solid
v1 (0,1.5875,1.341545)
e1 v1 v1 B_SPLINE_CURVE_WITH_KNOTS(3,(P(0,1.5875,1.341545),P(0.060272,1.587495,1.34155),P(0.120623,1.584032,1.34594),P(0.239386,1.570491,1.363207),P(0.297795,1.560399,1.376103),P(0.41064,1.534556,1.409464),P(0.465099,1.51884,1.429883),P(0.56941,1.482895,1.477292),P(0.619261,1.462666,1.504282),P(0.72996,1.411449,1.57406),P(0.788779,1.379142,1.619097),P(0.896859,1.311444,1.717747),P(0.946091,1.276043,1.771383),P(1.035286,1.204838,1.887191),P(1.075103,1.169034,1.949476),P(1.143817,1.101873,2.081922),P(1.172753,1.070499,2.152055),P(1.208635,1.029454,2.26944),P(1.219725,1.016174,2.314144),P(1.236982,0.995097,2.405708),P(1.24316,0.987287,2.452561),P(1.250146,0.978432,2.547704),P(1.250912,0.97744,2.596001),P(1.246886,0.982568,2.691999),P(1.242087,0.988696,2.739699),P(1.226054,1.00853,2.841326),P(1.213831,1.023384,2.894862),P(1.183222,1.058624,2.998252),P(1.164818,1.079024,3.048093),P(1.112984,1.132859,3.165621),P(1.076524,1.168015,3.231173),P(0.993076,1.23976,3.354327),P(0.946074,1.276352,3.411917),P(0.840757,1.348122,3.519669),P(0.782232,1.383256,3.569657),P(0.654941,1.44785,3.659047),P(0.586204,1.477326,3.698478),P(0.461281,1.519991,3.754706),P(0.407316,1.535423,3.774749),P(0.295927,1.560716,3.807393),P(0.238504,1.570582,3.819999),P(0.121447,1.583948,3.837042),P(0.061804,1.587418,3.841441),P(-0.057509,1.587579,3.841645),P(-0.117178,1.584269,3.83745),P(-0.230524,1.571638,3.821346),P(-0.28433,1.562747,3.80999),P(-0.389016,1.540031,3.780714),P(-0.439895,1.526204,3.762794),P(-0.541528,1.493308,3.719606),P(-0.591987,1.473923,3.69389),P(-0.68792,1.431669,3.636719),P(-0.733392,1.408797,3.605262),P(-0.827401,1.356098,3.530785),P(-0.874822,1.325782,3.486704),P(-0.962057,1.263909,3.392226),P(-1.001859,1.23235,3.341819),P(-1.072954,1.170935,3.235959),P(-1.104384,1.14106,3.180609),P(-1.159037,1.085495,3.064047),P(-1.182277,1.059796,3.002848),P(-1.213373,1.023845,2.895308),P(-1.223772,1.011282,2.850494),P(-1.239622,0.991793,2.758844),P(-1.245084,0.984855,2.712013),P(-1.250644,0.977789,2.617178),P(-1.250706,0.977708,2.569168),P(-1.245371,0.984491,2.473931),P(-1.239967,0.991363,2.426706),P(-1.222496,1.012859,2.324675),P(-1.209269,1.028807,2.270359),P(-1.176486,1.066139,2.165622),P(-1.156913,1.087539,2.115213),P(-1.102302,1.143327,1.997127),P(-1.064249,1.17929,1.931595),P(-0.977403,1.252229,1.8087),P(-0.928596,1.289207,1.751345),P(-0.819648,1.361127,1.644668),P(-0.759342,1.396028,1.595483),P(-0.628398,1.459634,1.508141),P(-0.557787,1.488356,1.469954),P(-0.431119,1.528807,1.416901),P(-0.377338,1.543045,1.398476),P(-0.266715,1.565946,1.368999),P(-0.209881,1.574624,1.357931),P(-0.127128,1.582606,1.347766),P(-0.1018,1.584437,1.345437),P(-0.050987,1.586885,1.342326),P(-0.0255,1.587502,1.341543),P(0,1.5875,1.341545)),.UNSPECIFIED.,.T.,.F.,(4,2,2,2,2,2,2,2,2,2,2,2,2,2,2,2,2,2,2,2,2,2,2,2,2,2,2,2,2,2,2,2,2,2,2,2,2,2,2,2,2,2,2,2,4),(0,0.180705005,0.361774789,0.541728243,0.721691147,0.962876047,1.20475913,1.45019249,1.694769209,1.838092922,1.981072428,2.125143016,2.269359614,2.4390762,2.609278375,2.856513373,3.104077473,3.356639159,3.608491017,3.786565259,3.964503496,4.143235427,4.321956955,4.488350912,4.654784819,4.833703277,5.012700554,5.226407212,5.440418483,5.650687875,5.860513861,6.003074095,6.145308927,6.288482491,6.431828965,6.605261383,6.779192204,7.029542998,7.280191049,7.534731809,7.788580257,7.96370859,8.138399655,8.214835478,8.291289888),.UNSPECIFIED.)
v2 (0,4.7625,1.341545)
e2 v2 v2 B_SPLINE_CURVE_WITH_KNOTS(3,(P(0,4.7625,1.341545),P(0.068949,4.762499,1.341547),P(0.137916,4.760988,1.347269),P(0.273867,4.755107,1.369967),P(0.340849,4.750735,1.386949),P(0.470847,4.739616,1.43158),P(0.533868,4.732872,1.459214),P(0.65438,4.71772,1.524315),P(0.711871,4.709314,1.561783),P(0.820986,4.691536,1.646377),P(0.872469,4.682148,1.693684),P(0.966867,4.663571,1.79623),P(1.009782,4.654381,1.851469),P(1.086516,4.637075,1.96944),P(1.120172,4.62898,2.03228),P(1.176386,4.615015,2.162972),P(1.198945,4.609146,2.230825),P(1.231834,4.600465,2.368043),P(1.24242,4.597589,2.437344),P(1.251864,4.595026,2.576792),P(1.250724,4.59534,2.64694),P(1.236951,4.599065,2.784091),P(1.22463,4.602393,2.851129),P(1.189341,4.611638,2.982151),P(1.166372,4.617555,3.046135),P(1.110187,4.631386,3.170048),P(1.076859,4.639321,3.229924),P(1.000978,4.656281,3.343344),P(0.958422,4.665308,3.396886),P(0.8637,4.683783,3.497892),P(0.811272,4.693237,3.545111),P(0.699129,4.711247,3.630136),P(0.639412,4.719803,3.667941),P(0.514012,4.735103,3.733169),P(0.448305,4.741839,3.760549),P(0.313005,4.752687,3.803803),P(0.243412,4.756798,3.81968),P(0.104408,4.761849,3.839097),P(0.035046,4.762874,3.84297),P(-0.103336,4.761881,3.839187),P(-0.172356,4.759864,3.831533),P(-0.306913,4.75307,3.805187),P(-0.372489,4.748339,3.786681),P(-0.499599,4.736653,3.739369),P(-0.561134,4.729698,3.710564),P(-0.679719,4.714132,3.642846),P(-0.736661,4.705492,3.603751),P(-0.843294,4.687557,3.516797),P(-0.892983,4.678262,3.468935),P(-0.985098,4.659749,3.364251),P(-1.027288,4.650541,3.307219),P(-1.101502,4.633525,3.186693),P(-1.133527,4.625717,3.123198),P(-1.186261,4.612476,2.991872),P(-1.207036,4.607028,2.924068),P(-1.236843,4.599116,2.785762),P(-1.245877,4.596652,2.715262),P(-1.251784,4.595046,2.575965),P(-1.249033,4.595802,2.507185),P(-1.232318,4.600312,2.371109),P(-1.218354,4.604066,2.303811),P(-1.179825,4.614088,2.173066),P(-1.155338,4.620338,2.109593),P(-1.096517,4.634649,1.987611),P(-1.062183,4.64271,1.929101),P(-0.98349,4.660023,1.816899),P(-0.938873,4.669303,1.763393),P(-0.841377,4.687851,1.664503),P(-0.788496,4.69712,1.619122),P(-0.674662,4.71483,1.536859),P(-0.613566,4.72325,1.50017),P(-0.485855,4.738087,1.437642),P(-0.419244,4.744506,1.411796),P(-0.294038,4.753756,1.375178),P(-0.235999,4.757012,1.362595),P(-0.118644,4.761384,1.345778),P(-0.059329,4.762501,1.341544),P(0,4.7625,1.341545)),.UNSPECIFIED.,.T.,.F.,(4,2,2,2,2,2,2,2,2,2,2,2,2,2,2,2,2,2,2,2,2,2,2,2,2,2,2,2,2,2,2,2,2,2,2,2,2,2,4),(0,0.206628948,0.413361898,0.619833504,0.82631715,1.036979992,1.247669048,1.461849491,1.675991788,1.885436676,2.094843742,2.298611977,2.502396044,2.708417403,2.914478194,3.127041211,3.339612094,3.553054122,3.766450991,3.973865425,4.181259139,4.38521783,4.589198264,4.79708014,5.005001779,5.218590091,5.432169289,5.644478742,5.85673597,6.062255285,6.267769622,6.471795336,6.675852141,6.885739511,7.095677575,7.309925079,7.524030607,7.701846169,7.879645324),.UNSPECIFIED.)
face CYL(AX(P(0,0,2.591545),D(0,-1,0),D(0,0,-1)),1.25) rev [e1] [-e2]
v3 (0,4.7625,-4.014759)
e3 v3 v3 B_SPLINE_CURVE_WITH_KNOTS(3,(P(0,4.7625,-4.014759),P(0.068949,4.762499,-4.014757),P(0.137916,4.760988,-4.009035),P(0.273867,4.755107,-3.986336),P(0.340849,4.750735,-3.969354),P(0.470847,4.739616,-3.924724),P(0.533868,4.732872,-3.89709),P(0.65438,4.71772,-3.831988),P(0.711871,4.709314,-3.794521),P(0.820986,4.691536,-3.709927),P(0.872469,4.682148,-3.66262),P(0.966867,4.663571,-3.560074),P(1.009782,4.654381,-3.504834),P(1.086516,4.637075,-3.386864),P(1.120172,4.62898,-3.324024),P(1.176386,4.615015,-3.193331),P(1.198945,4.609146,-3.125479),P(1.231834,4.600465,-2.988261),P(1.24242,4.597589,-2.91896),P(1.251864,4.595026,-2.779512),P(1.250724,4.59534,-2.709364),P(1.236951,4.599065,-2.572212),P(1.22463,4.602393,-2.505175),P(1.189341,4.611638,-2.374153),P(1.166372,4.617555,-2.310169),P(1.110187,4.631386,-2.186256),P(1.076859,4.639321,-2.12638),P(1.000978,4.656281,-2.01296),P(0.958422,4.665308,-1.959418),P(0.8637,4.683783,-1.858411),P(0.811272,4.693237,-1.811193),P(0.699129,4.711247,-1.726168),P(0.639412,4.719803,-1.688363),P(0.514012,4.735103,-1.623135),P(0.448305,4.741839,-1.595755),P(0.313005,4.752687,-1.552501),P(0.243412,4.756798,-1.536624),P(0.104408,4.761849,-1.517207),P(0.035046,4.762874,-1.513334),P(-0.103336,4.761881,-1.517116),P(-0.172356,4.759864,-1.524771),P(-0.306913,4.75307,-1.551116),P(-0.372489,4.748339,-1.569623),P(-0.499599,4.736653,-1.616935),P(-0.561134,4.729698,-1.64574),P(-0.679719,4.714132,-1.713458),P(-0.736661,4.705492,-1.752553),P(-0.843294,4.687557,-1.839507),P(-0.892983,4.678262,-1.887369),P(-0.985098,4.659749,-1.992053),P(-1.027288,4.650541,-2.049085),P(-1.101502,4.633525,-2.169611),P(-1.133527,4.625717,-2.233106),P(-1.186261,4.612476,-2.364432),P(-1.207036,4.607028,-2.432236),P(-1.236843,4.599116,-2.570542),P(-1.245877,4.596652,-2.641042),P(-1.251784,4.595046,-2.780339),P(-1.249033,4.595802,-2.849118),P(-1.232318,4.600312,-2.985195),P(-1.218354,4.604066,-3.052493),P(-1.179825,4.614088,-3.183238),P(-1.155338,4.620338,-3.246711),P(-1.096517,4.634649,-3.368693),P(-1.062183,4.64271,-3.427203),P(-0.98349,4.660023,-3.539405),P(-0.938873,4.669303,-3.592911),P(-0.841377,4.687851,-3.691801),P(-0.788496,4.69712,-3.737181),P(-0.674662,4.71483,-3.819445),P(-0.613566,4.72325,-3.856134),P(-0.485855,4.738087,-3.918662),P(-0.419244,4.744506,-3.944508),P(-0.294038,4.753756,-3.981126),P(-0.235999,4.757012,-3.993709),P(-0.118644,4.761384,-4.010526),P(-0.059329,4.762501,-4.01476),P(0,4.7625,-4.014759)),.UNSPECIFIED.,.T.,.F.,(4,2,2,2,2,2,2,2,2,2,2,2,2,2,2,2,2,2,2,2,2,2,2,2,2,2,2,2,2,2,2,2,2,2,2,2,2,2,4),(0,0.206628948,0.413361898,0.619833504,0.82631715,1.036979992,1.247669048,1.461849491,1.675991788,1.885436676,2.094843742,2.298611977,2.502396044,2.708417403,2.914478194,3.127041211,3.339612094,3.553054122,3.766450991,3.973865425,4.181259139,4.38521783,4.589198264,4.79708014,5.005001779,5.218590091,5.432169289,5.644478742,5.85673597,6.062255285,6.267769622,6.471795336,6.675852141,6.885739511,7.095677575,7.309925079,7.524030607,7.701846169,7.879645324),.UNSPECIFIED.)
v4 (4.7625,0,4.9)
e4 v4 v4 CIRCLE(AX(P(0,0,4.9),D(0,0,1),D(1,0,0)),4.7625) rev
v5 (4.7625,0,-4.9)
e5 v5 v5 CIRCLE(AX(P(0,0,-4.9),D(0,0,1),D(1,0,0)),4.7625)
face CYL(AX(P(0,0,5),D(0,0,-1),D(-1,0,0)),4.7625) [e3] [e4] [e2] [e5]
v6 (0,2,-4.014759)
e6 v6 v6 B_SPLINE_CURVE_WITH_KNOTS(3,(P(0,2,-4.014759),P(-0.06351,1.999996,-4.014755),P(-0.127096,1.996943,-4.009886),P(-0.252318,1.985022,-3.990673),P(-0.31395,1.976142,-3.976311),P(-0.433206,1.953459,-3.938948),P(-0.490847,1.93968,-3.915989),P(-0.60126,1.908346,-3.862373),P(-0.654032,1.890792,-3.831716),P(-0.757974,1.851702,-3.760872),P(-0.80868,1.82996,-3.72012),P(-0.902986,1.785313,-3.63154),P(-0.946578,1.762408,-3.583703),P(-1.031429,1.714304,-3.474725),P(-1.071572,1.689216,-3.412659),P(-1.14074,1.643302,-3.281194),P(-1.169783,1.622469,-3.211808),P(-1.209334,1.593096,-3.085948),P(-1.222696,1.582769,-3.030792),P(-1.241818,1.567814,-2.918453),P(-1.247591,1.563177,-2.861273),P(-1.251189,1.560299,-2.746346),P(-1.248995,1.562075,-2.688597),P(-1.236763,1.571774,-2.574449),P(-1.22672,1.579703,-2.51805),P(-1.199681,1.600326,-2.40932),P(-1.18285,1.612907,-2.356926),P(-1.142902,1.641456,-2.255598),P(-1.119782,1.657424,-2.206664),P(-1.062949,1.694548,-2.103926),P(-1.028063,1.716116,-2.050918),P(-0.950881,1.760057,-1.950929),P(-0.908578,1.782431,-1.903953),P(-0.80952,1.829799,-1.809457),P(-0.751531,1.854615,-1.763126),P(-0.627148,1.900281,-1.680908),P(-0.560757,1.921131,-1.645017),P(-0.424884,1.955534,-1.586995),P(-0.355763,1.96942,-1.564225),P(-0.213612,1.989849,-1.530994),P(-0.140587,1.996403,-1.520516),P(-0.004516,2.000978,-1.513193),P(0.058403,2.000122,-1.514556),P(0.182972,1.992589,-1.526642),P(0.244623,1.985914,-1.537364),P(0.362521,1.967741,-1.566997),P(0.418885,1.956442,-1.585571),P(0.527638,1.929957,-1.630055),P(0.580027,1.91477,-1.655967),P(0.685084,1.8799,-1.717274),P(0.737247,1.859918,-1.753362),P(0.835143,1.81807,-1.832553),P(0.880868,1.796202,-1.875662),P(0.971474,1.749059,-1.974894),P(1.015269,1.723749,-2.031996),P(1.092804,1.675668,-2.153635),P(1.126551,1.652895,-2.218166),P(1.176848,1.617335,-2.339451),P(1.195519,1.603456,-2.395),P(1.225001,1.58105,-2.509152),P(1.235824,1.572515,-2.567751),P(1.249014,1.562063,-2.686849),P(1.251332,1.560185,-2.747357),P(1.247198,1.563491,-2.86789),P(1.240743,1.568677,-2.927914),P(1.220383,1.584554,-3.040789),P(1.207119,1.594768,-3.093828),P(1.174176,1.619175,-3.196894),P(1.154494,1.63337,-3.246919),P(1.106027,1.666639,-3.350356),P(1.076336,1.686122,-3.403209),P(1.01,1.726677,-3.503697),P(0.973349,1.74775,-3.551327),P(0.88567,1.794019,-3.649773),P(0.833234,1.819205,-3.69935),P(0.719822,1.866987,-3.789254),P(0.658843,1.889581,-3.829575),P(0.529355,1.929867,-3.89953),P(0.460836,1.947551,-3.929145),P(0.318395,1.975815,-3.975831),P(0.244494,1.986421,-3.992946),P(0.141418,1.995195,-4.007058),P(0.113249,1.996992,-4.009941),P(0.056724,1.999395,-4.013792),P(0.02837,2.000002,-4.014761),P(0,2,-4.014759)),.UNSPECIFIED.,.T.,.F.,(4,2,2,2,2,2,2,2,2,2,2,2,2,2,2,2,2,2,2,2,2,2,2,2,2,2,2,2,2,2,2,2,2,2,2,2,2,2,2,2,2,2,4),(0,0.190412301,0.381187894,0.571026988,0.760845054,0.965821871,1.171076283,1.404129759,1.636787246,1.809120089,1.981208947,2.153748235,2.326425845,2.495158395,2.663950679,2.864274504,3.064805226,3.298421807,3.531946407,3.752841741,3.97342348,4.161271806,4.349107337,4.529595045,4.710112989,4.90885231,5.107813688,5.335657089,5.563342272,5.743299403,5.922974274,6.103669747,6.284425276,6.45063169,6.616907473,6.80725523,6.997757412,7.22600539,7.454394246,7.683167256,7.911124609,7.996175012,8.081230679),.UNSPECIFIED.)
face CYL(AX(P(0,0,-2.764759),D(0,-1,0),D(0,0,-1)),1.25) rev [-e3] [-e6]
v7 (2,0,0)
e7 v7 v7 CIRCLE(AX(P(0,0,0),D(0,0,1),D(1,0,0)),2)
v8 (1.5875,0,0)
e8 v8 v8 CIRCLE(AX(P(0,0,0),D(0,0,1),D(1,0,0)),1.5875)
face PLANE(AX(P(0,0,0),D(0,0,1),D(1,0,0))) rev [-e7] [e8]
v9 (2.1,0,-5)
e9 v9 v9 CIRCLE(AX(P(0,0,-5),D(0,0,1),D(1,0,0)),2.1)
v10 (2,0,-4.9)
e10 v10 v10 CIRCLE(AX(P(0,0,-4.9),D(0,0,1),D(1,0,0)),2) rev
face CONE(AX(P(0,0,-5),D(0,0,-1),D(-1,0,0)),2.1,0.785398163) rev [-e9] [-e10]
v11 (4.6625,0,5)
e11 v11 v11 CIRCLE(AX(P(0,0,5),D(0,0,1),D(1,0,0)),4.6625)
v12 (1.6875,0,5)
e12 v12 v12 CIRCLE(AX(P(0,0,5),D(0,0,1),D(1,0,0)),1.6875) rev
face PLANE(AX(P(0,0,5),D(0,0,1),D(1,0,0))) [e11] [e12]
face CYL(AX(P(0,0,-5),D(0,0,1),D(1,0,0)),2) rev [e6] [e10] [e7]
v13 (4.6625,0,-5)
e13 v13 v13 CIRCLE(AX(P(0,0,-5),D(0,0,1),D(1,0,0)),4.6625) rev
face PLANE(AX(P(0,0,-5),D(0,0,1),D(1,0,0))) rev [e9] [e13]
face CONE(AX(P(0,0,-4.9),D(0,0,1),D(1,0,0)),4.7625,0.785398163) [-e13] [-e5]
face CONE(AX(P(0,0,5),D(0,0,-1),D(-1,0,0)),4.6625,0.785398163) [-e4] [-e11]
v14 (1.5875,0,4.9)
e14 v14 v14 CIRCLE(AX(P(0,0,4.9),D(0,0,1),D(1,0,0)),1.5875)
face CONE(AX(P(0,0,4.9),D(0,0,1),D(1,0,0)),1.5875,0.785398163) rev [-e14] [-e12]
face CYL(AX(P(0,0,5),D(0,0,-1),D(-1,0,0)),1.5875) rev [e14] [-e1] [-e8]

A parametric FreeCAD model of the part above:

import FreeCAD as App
import Part
import Sketcher
Q = App.Units.Quantity


def edges_at(feature, points):
    """Names of the edges that pass closest to the given points."""
    edges = feature.Shape.Edges
    near = lambda p: min(range(len(edges)), key=lambda i: edges[i].distToShape(Part.Vertex(*p))[0])
    return sorted({f"Edge{near(p) + 1}" for p in points})

doc = App.newDocument("Part")
body = doc.addObject("PartDesign::Body", "Body")

sketch1 = doc.addObject("Sketcher::SketchObject", "Sketch")
body.addObject(sketch1)
sketch1.AttachmentSupport = (doc.XY_Plane, [""])
sketch1.MapMode = "FlatFace"
sketch1.addGeometry([
    Part.Circle(App.Vector(0, 0, 0), App.Vector(0, 0, 1), 4.7625),
    Part.Circle(App.Vector(0, 0, 0), App.Vector(0, 0, 1), 1.5875),
], False)
sketch1.addConstraint([
    Sketcher.Constraint("Coincident", 0, 3, -1, 1),
    Sketcher.Constraint("Coincident", 1, 3, -1, 1),
    Sketcher.Constraint("Diameter", 0, Q("9.525 mm")),
    Sketcher.Constraint("Diameter", 1, Q("3.175 mm")),
])
pad1 = doc.addObject("PartDesign::Pad", "Pad")
body.addObject(pad1)
pad1.Profile = sketch1
pad1.Length = 5

sketch2 = doc.addObject("Sketcher::SketchObject", "Sketch001")
body.addObject(sketch2)
sketch2.AttachmentSupport = (doc.XY_Plane, [""])
sketch2.MapMode = "FlatFace"
sketch2.AttachmentOffset = App.Placement(App.Vector(0, 0, -5), App.Rotation())
sketch2.addGeometry([
    Part.Circle(App.Vector(0, 0, 0), App.Vector(0, 0, 1), 4.7625),
    Part.Circle(App.Vector(0, 0, 0), App.Vector(0, 0, 1), 2),
], False)
sketch2.addConstraint([
    Sketcher.Constraint("Coincident", 0, 3, -1, 1),
    Sketcher.Constraint("Coincident", 1, 3, -1, 1),
    Sketcher.Constraint("Diameter", 1, Q("4 mm")),
    Sketcher.Constraint("Diameter", 0, Q("9.525 mm")),
])
pad2 = doc.addObject("PartDesign::Pad", "Pad001")
body.addObject(pad2)
pad2.Profile = sketch2
pad2.Length = 5

sketch3 = doc.addObject("Sketcher::SketchObject", "Sketch002")
body.addObject(sketch3)
sketch3.AttachmentSupport = (doc.YZ_Plane, [""])
sketch3.MapMode = "FlatFace"
sketch3.addGeometry([
    Part.LineSegment(App.Vector(4.7625, 2.591545, 0), App.Vector(0, 2.591545, 0)),
    Part.LineSegment(App.Vector(0, 2.591545, 0), App.Vector(0, 1.341545, 0)),
    Part.LineSegment(App.Vector(0, 1.341545, 0), App.Vector(4.7625, 1.341545, 0)),
    Part.LineSegment(App.Vector(4.7625, 1.341545, 0), App.Vector(4.7625, 2.591545, 0)),
], False)
sketch3.addGeometry(Part.LineSegment(App.Vector(0, 2.591545, 0), App.Vector(4.7625, 2.591545, 0)), True)
sketch3.addConstraint([
    Sketcher.Constraint("Coincident", 0, 2, 1, 1),
    Sketcher.Constraint("Coincident", 1, 2, 2, 1),
    Sketcher.Constraint("Coincident", 2, 2, 3, 1),
    Sketcher.Constraint("Coincident", 3, 2, 0, 1),
    Sketcher.Constraint("Horizontal", 0),
    Sketcher.Constraint("Vertical", 1),
    Sketcher.Constraint("Horizontal", 2),
    Sketcher.Constraint("Vertical", 3),
    Sketcher.Constraint("Horizontal", 4),
    Sketcher.Constraint("Coincident", 4, 1, 0, 2),
    Sketcher.Constraint("PointOnObject", 0, 2, -2),
    Sketcher.Constraint("Vertical", 2, 2, 4, 2),
    Sketcher.Constraint("DistanceY", 1, 2, 1, 1, Q("1.25 mm")),
    Sketcher.Constraint("DistanceX", 0, 2, 0, 1, Q("4.7625 mm")),
    Sketcher.Constraint("DistanceY", -1, 1, 0, 2, Q("2.591545 mm")),
])
groove = doc.addObject("PartDesign::Groove", "Groove")
body.addObject(groove)
groove.Profile = sketch3
groove.ReferenceAxis = (sketch3, ["Axis0"])
groove.Angle = 360
doc.recompute()

linearpattern = doc.addObject("PartDesign::LinearPattern", "LinearPattern")
body.addObject(linearpattern)
linearpattern.Originals = [groove]
linearpattern.Direction = (doc.Z_Axis, [""])
linearpattern.Mode = "offset"
linearpattern.Offset = 5.356304
linearpattern.Occurrences = 2
linearpattern.Reversed = True
body.Tip = linearpattern
doc.recompute()

chamfer = doc.addObject("PartDesign::Chamfer", "Chamfer")
body.addObject(chamfer)
chamfer.Base = (linearpattern, edges_at(linearpattern, [
    (-4.763, 0, -5),
    (-2, 0, -5),
    (-4.763, 0, 5),
    (-1.587, 0, 5),
]))
chamfer.Size = 0.1

doc.recompute()
